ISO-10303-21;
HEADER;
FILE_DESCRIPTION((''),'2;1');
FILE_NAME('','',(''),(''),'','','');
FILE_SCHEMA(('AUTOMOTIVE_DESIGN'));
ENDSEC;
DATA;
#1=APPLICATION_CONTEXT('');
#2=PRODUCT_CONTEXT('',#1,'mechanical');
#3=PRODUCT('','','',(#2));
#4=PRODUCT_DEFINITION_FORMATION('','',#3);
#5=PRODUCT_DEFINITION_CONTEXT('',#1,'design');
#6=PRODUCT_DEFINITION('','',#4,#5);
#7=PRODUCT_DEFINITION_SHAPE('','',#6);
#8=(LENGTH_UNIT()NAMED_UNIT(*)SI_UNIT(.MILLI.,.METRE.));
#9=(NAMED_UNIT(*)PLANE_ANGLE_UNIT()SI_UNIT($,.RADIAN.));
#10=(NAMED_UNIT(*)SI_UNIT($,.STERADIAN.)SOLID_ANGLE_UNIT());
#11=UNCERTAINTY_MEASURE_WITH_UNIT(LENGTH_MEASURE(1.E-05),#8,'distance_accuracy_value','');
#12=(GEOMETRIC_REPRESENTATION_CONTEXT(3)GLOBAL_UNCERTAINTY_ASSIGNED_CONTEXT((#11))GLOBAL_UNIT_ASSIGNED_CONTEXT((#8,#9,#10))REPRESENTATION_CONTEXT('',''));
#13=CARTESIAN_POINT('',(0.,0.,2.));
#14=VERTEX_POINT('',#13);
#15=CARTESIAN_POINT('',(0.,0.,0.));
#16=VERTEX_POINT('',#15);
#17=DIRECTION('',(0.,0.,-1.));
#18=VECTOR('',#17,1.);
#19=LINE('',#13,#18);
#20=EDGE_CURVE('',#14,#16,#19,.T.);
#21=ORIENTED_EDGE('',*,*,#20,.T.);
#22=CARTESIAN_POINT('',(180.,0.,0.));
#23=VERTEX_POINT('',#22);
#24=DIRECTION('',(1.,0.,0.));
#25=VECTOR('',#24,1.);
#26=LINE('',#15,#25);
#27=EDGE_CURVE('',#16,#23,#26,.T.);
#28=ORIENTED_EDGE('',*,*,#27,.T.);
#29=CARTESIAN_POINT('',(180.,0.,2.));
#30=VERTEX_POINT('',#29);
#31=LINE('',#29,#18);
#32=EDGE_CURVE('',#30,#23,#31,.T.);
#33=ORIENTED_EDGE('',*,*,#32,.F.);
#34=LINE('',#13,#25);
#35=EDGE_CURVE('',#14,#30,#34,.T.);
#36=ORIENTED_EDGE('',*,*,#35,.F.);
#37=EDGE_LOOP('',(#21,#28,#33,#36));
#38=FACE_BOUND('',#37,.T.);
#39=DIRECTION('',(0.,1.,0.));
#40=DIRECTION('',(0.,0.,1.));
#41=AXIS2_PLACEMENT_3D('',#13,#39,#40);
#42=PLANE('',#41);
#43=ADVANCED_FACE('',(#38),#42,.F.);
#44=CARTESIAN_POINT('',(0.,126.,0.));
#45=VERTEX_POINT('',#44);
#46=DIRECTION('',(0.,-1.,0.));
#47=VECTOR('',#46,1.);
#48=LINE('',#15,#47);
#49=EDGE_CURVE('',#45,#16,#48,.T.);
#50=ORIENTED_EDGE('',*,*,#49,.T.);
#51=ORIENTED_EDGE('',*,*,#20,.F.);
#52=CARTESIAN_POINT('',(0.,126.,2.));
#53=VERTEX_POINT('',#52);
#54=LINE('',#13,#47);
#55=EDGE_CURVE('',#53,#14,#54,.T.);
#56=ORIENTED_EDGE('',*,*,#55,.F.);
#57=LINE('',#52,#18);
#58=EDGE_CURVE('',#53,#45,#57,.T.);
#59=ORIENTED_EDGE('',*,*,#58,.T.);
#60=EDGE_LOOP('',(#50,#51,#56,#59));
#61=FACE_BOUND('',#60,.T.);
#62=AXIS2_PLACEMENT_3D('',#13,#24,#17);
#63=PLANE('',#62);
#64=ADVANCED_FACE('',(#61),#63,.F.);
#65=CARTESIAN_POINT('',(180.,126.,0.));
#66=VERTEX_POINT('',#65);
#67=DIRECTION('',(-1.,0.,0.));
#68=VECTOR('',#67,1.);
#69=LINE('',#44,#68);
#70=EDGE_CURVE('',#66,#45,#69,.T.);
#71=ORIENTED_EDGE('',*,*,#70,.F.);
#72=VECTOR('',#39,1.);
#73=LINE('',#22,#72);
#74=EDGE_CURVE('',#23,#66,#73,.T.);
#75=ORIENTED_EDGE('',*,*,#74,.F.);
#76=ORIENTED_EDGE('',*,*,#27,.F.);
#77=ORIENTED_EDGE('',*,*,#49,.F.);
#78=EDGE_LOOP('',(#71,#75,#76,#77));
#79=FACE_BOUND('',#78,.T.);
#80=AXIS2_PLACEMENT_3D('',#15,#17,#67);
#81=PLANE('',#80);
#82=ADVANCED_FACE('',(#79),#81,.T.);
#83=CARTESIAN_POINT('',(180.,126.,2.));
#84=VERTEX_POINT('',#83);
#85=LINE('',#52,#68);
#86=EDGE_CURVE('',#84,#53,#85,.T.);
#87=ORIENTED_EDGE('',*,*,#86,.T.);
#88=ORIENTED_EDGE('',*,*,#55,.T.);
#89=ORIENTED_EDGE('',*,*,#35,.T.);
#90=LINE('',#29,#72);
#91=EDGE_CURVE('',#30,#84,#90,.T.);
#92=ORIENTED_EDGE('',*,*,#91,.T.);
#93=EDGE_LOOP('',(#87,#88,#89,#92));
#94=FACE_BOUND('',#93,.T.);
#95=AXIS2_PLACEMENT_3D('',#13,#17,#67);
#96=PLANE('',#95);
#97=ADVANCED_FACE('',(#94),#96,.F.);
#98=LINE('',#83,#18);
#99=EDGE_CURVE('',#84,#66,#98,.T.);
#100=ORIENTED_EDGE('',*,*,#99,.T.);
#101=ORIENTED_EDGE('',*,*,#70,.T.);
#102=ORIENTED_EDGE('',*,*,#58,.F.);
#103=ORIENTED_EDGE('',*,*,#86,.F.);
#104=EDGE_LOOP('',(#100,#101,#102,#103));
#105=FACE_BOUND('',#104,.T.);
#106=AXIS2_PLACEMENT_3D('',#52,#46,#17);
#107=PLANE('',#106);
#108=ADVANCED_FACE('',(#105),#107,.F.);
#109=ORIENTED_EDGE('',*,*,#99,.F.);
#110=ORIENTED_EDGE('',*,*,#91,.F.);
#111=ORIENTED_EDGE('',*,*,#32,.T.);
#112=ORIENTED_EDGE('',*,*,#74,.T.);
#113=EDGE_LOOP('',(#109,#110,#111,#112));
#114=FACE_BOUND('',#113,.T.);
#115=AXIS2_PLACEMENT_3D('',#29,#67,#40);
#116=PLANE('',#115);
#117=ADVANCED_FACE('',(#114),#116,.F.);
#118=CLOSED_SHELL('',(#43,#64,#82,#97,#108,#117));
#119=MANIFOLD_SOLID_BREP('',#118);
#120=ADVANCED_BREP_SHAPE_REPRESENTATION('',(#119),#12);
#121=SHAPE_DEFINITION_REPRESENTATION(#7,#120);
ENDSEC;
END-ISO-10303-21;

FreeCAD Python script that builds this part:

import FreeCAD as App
import Part
import Sketcher

doc = App.newDocument("Part")
body = doc.addObject("PartDesign::Body", "Body")

sketch1 = body.newObject("Sketcher::SketchObject", "Sketch")
sketch1.AttachmentSupport = (doc.getObject("XY_Plane"), [""])
sketch1.MapMode = "FlatFace"
sketch1.addGeometry(Part.LineSegment(App.Vector(0, 126, 0), App.Vector(0, 0, 0)), False)
sketch1.addGeometry(Part.LineSegment(App.Vector(0, 0, 0), App.Vector(180, 0, 0)), False)
sketch1.addGeometry(Part.LineSegment(App.Vector(180, 0, 0), App.Vector(180, 126, 0)), False)
sketch1.addGeometry(Part.LineSegment(App.Vector(180, 126, 0), App.Vector(0, 126, 0)), False)
sketch1.addConstraint(Sketcher.Constraint("Coincident", 0, 2, 1, 1))
sketch1.addConstraint(Sketcher.Constraint("Coincident", 1, 2, 2, 1))
sketch1.addConstraint(Sketcher.Constraint("Coincident", 2, 2, 3, 1))
sketch1.addConstraint(Sketcher.Constraint("Coincident", 3, 2, 0, 1))
sketch1.addConstraint(Sketcher.Constraint("Vertical", 0))
sketch1.addConstraint(Sketcher.Constraint("Horizontal", 1))
sketch1.addConstraint(Sketcher.Constraint("Vertical", 2))
sketch1.addConstraint(Sketcher.Constraint("Horizontal", 3))
sketch1.addConstraint(Sketcher.Constraint("Coincident", 0, 2, -1, 1))
sketch1.addConstraint(Sketcher.Constraint("DistanceX", 1, 1, 1, 2, 180.0))
sketch1.addConstraint(Sketcher.Constraint("DistanceY", 0, 2, 0, 1, 126.0))
pad1 = body.newObject("PartDesign::Pad", "Pad")
pad1.Profile = sketch1
pad1.Length = 2

doc.recompute()
